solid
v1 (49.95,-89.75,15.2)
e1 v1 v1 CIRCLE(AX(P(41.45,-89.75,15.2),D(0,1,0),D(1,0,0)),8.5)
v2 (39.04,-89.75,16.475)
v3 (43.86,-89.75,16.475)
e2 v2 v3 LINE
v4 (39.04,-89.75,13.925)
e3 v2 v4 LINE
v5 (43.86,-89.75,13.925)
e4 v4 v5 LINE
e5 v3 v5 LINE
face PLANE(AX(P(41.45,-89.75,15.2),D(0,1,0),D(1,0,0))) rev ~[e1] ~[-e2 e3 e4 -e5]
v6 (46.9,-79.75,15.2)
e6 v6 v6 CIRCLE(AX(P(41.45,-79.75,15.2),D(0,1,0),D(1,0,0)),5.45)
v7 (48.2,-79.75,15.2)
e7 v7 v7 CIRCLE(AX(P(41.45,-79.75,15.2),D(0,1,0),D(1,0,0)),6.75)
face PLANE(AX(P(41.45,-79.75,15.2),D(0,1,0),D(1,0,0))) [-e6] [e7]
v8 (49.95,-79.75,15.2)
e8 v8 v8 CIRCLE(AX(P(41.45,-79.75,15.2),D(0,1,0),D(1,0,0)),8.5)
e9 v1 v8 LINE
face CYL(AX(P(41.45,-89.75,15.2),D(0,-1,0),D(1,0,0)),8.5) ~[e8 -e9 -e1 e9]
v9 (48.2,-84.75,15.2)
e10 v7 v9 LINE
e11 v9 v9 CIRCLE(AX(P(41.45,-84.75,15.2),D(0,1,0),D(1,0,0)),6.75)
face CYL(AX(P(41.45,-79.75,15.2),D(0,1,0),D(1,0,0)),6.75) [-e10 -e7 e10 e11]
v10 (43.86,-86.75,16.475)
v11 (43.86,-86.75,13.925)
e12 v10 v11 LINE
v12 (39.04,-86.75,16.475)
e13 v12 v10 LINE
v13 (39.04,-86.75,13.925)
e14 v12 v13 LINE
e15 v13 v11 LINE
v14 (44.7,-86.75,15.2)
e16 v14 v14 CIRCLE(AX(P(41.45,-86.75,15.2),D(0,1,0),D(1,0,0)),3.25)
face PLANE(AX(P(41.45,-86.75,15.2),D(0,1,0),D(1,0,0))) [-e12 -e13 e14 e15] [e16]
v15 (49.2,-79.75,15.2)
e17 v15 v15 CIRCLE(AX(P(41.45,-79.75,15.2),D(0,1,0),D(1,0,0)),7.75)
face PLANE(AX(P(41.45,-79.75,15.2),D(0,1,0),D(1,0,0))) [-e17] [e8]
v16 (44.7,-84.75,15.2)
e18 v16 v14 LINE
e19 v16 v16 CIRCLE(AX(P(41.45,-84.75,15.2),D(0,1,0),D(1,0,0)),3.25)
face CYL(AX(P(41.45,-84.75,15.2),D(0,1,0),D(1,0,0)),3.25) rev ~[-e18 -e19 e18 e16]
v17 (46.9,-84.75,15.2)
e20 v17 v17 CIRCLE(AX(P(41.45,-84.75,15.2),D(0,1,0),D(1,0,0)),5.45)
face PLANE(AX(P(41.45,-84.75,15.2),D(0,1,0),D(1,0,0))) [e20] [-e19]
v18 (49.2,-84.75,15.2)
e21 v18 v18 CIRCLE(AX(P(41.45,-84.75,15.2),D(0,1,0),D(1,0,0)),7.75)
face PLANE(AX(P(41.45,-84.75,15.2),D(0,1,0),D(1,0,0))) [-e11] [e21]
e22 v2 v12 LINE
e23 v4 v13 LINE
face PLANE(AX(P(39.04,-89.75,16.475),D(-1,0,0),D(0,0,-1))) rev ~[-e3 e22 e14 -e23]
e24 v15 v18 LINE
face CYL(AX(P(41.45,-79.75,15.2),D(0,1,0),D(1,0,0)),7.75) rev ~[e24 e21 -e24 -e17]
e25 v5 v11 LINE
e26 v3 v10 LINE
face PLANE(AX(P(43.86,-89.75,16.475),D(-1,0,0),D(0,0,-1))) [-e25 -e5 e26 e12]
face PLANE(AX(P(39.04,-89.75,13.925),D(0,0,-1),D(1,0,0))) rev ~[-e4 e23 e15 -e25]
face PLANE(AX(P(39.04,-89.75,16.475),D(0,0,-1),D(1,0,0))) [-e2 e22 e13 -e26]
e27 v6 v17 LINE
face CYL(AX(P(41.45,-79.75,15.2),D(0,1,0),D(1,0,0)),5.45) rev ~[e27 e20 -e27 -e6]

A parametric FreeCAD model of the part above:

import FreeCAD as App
import Part
import Sketcher

V = App.Vector
Q = App.Units.Quantity

doc = App.newDocument("Part")
body = doc.addObject("PartDesign::Body", "Body")

# Sketch on XY plane
sketch1 = body.newObject("Sketcher::SketchObject", "Sketch")
sketch1.AttachmentSupport = (doc.getObject("XY_Plane"), [""])
sketch1.MapMode = "FlatFace"
sketch1.addGeometry(Part.Circle(V(0, 0, 0), V(0, 0, 1), 8.5), False)
sketch1.addGeometry(Part.LineSegment(V(2.4, -1.3, 0), V(-2.4, -1.3, 0)), False)
sketch1.addGeometry(Part.LineSegment(V(-2.4, -1.3, 0), V(-2.4, 1.3, 0)), False)
sketch1.addGeometry(Part.LineSegment(V(-2.4, 1.3, 0), V(2.4, 1.3, 0)), False)
sketch1.addGeometry(Part.LineSegment(V(2.4, 1.3, 0), V(2.4, -1.3, 0)), False)
sketch1.addConstraint(Sketcher.Constraint("Coincident", 1, 2, 2, 1))
sketch1.addConstraint(Sketcher.Constraint("Coincident", 2, 2, 3, 1))
sketch1.addConstraint(Sketcher.Constraint("Coincident", 3, 2, 4, 1))
sketch1.addConstraint(Sketcher.Constraint("Coincident", 4, 2, 1, 1))
sketch1.addConstraint(Sketcher.Constraint("Horizontal", 1))
sketch1.addConstraint(Sketcher.Constraint("Vertical", 2))
sketch1.addConstraint(Sketcher.Constraint("Horizontal", 3))
sketch1.addConstraint(Sketcher.Constraint("Vertical", 4))
sketch1.addConstraint(Sketcher.Constraint("Coincident", 0, 3, -1, 1))
sketch1.addConstraint(Sketcher.Constraint("Symmetric", 1, 2, 3, 2, -1, 1))
sketch1.addConstraint(Sketcher.Constraint("Diameter", 0, Q("17 mm")))
sketch1.addConstraint(Sketcher.Constraint("DistanceX", 1, 2, 1, 1, Q("4.82 mm")))
sketch1.addConstraint(Sketcher.Constraint("DistanceY", 2, 1, 2, 2, Q("2.55 mm")))
pad1 = body.newObject("PartDesign::Pad", "Pad")
pad1.Profile = sketch1
pad1.Length = 10

# Sketch on XY plane
sketch2 = body.newObject("Sketcher::SketchObject", "Sketch001")
sketch2.AttachmentSupport = (doc.getObject("XY_Plane"), [""])
sketch2.MapMode = "FlatFace"
sketch2.AttachmentOffset = App.Placement(V(0, 0, 10), App.Rotation())
sketch2.addGeometry(Part.Circle(V(0, 0, 0), V(0, 0, 1), 8), False)
sketch2.addGeometry(Part.Circle(V(0, 0, 0), V(0, 0, 1), 7), False)
sketch2.addConstraint(Sketcher.Constraint("Coincident", 0, 3, -1, 1))
sketch2.addConstraint(Sketcher.Constraint("Coincident", 1, 3, -1, 1))
sketch2.addConstraint(Sketcher.Constraint("Diameter", 0, Q("15.5 mm")))
sketch2.addConstraint(Sketcher.Constraint("Diameter", 1, Q("13.5 mm")))
pocket1 = body.newObject("PartDesign::Pocket", "Pocket")
pocket1.Profile = sketch2
pocket1.Length = 5

# Sketch on XY plane
sketch3 = body.newObject("Sketcher::SketchObject", "Sketch002")
sketch3.AttachmentSupport = (doc.getObject("XY_Plane"), [""])
sketch3.MapMode = "FlatFace"
sketch3.AttachmentOffset = App.Placement(V(0, 0, 10), App.Rotation())
sketch3.addGeometry(Part.Circle(V(0, 0, 0), V(0, 0, 1), 5), False)
sketch3.addConstraint(Sketcher.Constraint("Coincident", 0, 3, -1, 1))
sketch3.addConstraint(Sketcher.Constraint("Diameter", 0, Q("10.9 mm")))
pocket2 = body.newObject("PartDesign::Pocket", "Pocket001")
pocket2.Profile = sketch3
pocket2.Length = 5

# Sketch on XY plane
sketch4 = body.newObject("Sketcher::SketchObject", "Sketch003")
sketch4.AttachmentSupport = (doc.getObject("XY_Plane"), [""])
sketch4.MapMode = "FlatFace"
sketch4.AttachmentOffset = App.Placement(V(0, 0, 5), App.Rotation())
sketch4.addGeometry(Part.Circle(V(0, 0, 0), V(0, 0, 1), 3.2), False)
sketch4.addConstraint(Sketcher.Constraint("Coincident", 0, 3, -1, 1))
sketch4.addConstraint(Sketcher.Constraint("Diameter", 0, Q("6.5 mm")))
pocket3 = body.newObject("PartDesign::Pocket", "Pocket002")
pocket3.Profile = sketch4
pocket3.Length = 2
body2 = doc.addObject("PartDesign::Body", "Body001")
doc.recompute()

body.Placement = App.Placement(V(41.45, -89.75, 15.2), App.Rotation(V(1, 0, 0), 270))
boolean = body2.newObject("PartDesign::Boolean", "Boolean")
boolean.Type = "Fuse"
boolean.addObjects([body])

doc.recompute()
